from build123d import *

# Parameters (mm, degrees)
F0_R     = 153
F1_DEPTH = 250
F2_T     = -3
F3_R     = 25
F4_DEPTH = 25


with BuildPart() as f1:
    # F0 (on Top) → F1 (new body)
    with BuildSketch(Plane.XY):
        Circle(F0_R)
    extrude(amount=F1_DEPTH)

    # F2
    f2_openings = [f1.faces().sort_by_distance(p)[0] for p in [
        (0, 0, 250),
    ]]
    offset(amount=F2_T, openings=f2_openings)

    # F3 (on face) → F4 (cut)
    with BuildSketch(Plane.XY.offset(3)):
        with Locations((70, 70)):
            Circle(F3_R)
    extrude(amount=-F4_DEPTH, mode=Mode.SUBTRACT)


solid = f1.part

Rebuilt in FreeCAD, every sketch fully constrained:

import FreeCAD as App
import Part
import Sketcher


def faces_at(feature, points):
    """Names of the faces that lie closest to the given points."""
    faces = feature.Shape.Faces
    near = lambda p: min(range(len(faces)), key=lambda i: faces[i].distToShape(Part.Vertex(*p))[0])
    return sorted({f"Face{near(p) + 1}" for p in points})

doc = App.newDocument("Part")
body = doc.addObject("PartDesign::Body", "Body")

sketch1 = doc.addObject("Sketcher::SketchObject", "Sketch")
body.addObject(sketch1)
sketch1.AttachmentSupport = (doc.XY_Plane, [""])
sketch1.MapMode = "FlatFace"
sketch1.addGeometry(Part.Circle(App.Vector(0, 0, 0), App.Vector(0, 0, 1), 153), False)
sketch1.addConstraint([
    Sketcher.Constraint("Coincident", 0, 3, -1, 1),
    Sketcher.Constraint("Diameter", 0, 306.0),
])
pad1 = doc.addObject("PartDesign::Pad", "Pad")
body.addObject(pad1)
pad1.Profile = sketch1
pad1.Length = 250
doc.recompute()

thickness = doc.addObject("PartDesign::Thickness", "Thickness")
body.addObject(thickness)
thickness.Base = (pad1, faces_at(pad1, [(0, 0, 250)]))
thickness.Value = 3
thickness.Reversed = True
thickness.Join = "Arc"

sketch2 = doc.addObject("Sketcher::SketchObject", "Sketch001")
body.addObject(sketch2)
sketch2.AttachmentSupport = (doc.XY_Plane, [""])
sketch2.MapMode = "FlatFace"
sketch2.AttachmentOffset = App.Placement(App.Vector(0, 0, 3), App.Rotation())
sketch2.addGeometry(Part.Circle(App.Vector(70, 70, 0), App.Vector(0, 0, 1), 25), False)
sketch2.addConstraint([
    Sketcher.Constraint("Diameter", 0, 50.0),
    Sketcher.Constraint("DistanceX", -1, 1, 0, 3, 70.0),
    Sketcher.Constraint("DistanceY", -1, 1, 0, 3, 70.0),
])
pocket1 = doc.addObject("PartDesign::Pocket", "Pocket")
body.addObject(pocket1)
pocket1.Profile = sketch2
pocket1.Length = 25

doc.recompute()
